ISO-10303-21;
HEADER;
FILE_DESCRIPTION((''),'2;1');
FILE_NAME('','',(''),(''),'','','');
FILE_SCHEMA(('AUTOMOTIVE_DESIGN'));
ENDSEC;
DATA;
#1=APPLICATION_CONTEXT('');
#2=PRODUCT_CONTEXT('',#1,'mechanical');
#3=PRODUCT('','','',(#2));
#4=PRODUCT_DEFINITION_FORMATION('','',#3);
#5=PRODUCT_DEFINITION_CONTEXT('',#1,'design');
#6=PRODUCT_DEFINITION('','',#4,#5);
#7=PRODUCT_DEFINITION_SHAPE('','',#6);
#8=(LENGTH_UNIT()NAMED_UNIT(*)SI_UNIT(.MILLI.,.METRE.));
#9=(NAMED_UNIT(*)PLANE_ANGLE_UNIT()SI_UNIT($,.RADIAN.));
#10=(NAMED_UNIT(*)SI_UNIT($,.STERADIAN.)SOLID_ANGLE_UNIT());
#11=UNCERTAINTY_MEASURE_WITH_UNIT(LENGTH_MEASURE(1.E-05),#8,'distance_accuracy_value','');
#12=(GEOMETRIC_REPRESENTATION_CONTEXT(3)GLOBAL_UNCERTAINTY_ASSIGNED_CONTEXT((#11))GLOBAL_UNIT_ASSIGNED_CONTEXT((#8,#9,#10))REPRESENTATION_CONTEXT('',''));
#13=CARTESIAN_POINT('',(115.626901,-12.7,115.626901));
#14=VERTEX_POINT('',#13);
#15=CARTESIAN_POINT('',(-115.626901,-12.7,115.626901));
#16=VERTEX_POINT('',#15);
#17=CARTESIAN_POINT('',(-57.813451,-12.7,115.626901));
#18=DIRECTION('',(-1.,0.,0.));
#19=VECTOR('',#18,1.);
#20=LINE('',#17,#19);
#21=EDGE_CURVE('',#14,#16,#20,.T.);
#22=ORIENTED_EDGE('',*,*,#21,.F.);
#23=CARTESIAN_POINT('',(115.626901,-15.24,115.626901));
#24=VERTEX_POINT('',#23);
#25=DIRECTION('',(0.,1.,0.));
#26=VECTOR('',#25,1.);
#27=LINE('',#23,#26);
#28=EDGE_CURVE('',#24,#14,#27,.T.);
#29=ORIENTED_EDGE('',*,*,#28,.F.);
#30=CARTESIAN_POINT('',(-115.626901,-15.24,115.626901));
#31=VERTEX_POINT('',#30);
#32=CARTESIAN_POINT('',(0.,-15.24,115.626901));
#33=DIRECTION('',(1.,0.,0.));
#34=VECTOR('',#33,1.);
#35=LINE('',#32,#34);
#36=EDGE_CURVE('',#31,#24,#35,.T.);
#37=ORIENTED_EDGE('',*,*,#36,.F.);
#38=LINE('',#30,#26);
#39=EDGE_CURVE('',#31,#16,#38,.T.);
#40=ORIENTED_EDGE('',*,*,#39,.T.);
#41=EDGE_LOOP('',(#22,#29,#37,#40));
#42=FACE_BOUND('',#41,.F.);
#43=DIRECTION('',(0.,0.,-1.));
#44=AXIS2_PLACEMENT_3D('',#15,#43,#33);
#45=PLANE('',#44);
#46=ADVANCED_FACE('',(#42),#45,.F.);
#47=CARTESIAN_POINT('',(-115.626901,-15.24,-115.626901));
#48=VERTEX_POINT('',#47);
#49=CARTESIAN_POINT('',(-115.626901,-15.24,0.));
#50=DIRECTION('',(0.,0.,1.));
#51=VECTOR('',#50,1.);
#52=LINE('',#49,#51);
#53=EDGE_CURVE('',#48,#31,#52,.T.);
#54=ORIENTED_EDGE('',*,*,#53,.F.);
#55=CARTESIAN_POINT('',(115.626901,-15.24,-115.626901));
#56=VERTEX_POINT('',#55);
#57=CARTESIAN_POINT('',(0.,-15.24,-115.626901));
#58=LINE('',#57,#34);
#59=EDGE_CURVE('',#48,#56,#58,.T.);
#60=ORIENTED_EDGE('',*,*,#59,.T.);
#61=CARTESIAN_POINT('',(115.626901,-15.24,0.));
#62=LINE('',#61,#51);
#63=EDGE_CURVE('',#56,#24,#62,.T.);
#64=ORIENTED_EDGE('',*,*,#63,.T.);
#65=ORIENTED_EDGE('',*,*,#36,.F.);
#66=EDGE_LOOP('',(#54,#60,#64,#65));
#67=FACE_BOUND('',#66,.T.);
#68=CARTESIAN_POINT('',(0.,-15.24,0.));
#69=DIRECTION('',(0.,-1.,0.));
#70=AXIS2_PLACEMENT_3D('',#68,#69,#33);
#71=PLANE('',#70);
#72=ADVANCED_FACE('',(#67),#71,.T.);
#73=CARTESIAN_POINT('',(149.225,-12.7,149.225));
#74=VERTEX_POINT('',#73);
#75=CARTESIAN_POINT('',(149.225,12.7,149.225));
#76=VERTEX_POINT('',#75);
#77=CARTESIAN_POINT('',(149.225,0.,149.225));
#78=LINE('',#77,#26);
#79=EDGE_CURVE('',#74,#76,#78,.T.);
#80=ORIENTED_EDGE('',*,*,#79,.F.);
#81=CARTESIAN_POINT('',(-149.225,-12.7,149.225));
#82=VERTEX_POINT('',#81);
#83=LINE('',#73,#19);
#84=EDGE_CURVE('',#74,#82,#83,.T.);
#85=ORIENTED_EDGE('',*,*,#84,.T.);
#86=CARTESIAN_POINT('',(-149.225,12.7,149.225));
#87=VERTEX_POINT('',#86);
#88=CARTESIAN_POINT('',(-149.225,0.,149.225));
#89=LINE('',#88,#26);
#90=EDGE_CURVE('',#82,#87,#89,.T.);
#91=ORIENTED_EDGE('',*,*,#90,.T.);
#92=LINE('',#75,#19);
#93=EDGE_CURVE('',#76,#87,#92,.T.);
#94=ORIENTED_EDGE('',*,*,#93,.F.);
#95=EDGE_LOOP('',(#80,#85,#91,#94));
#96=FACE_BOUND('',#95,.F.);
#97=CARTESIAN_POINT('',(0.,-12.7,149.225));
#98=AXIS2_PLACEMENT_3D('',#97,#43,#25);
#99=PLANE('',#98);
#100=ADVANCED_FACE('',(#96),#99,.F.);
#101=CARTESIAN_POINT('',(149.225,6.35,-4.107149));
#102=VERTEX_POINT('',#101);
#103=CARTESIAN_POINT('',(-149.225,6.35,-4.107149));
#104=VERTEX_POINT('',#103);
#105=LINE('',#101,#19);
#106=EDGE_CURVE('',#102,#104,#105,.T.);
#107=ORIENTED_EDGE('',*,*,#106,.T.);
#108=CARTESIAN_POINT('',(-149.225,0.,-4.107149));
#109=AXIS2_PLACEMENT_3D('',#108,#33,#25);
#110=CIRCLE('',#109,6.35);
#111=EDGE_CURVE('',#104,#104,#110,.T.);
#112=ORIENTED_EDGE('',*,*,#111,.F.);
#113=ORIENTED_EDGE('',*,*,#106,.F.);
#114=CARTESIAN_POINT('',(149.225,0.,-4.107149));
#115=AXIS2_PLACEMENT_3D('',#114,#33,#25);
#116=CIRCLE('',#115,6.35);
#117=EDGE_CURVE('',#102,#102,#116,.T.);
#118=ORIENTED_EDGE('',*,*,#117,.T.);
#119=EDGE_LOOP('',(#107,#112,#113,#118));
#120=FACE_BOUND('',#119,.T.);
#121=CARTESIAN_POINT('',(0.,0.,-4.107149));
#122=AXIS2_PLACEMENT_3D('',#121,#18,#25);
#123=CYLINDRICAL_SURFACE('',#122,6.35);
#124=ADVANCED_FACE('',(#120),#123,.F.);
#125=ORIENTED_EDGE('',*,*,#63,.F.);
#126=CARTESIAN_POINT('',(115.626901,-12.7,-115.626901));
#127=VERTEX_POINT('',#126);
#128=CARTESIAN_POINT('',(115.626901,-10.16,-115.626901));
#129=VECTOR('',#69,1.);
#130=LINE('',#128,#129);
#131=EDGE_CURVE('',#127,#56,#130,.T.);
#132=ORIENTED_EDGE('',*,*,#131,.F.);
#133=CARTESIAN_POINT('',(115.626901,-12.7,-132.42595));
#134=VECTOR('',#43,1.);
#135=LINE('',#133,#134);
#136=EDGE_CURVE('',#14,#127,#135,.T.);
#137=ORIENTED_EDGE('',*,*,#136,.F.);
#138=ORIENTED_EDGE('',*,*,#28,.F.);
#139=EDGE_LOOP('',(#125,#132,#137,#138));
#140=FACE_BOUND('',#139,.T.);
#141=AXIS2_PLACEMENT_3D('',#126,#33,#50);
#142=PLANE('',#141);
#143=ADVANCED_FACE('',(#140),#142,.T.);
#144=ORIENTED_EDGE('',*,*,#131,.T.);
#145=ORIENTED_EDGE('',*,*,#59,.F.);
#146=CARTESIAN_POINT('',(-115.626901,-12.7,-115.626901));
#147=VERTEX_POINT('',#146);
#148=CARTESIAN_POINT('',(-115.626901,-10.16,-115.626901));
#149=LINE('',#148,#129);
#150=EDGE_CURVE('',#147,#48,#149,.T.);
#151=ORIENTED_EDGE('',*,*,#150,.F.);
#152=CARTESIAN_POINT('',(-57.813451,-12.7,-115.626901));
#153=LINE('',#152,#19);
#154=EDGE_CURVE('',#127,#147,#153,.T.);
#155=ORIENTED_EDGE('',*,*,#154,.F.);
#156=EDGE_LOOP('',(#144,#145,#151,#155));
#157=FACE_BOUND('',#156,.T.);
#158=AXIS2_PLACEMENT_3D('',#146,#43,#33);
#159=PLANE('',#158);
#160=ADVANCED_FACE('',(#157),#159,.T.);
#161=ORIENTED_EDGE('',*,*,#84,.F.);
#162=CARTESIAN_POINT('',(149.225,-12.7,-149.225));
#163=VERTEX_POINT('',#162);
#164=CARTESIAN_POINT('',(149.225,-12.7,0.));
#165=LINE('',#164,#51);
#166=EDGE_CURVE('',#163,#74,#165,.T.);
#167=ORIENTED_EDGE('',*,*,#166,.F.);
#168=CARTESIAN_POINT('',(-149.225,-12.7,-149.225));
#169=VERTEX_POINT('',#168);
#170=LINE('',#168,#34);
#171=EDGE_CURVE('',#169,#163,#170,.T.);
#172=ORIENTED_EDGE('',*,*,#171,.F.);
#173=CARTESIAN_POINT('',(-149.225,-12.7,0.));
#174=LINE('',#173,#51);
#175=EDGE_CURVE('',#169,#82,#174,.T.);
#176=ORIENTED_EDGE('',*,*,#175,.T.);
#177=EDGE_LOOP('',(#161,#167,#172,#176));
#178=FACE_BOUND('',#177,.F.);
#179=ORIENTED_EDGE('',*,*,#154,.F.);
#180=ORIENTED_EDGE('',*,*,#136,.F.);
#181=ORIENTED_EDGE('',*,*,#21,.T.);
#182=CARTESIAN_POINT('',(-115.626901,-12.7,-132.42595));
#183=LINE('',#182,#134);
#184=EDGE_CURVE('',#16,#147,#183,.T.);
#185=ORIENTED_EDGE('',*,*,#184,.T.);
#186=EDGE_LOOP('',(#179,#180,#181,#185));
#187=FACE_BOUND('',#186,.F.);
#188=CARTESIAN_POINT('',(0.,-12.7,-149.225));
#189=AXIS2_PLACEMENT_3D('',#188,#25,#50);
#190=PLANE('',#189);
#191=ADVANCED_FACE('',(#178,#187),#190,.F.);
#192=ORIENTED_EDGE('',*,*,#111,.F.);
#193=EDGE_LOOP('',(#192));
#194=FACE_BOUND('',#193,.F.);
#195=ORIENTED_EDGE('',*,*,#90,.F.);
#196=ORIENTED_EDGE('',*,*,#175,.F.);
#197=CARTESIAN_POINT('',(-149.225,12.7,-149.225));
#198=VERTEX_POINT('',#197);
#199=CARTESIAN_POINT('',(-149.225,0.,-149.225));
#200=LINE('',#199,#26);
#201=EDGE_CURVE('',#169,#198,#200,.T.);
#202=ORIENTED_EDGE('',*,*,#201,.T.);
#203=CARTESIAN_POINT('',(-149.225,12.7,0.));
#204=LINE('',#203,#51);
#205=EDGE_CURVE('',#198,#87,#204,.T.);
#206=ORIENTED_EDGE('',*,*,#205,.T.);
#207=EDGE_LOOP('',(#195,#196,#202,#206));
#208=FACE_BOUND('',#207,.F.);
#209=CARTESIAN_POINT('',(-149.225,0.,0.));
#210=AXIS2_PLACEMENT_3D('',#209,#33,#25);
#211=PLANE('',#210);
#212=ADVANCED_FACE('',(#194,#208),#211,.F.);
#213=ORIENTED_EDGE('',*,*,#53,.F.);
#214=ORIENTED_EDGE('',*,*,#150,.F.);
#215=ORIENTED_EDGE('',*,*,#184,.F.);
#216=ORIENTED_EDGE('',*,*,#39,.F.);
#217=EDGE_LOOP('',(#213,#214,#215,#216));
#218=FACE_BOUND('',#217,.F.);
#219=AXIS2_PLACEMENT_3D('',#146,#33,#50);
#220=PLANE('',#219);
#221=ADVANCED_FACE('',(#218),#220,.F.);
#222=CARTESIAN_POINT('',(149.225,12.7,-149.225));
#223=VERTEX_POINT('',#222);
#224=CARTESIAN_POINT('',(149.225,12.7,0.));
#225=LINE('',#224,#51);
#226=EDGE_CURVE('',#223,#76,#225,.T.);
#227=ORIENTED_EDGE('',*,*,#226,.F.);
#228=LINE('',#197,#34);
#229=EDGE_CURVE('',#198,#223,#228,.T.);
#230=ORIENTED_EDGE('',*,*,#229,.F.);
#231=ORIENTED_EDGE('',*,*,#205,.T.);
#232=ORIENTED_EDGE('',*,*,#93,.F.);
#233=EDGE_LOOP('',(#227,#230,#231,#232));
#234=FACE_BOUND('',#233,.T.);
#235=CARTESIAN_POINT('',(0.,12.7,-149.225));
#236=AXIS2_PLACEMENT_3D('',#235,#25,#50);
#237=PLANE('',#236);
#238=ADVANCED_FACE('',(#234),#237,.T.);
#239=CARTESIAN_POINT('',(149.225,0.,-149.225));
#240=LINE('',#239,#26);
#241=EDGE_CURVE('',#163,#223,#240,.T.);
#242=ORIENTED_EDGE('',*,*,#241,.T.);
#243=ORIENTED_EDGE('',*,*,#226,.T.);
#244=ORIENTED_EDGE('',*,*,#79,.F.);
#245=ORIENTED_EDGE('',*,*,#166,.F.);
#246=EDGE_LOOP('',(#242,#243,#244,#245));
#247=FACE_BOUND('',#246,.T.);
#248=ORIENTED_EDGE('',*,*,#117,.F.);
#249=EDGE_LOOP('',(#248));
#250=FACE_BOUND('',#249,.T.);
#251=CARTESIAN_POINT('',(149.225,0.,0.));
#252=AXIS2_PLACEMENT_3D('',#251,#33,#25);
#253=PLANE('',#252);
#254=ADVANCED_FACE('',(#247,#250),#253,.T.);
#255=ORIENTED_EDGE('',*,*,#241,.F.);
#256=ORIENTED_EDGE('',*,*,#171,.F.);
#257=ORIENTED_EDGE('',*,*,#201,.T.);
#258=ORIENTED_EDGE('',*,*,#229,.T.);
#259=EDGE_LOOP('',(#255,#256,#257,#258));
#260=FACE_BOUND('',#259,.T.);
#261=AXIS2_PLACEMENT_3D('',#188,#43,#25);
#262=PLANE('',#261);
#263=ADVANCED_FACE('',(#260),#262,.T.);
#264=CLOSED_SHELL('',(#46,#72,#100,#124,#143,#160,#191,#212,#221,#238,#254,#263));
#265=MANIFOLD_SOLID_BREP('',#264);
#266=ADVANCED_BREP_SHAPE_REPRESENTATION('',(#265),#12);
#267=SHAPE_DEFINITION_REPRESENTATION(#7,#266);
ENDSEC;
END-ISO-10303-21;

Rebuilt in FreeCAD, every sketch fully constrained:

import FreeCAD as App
import Part
import Sketcher
from FreeCAD import Vector
Q = App.Units.Quantity


def add_polygon(sketch, points):
    """Adds a closed chain of lines whose ends are joined by coincident constraints."""
    first, n = sketch.GeometryCount, len(points)
    for a, b in zip(points, points[1:] + points[:1]):
        sketch.addGeometry(Part.LineSegment(App.Vector(*a, 0), App.Vector(*b, 0)), False)
    for i in range(n):
        sketch.addConstraint(Sketcher.Constraint("Coincident", first + i, 2, first + (i + 1) % n, 1))

doc = App.newDocument("Part")
params = doc.addObject("Spreadsheet::Sheet", "Params")
for row, (alias, value) in enumerate([
    ("sketch1_diameter", "0.5 in"),
    ("sketch1_width", "1 in"),
    ("sketch1_height", "11.75 in"),
    ("pad1_length", "11.75 in"),
    ("pad2_length", "0.2 in"),
], start=1):
    params.set(f"A{row}", alias)
    params.set(f"B{row}", "=" + value)
    params.setAlias(f"B{row}", alias)

body = doc.addObject("PartDesign::Body", "Body")

# Sketch on YZ plane
sketch1 = body.newObject("Sketcher::SketchObject", "Sketch")
sketch1.AttachmentSupport = (doc.getObject("YZ_Plane"), [""])
sketch1.MapMode = "FlatFace"
add_polygon(sketch1, [(-13, 149), (-13, -149), (13, -149), (13, 149)])  # lines 0-3
sketch1.addGeometry(Part.Circle(Vector(0, -4, 0), Vector(0, 0, 1), 6), False)  # 4
sketch1.addConstraint(Sketcher.Constraint("Vertical", 0))
sketch1.addConstraint(Sketcher.Constraint("Horizontal", 1))
sketch1.addConstraint(Sketcher.Constraint("Vertical", 2))
sketch1.addConstraint(Sketcher.Constraint("Horizontal", 3))
sketch1.addConstraint(Sketcher.Constraint("Symmetric", 0, 2, 2, 2, -1, 1))
sketch1.addConstraint(Sketcher.Constraint("PointOnObject", 4, 3, -2))
sketch1.addConstraint(Sketcher.Constraint("Diameter", 4, Q("0.5 in")))
sketch1.addConstraint(Sketcher.Constraint("DistanceX", 1, 1, 1, 2, Q("1 in")))
sketch1.addConstraint(Sketcher.Constraint("DistanceY", 0, 2, 0, 1, Q("11.75 in")))
sketch1.addConstraint(Sketcher.Constraint("DistanceY", 4, 3, -1, 1, Q("4.107149 mm")))
sketch1.setExpression("Constraints[10]", "Params.sketch1_diameter")
sketch1.setExpression("Constraints[11]", "Params.sketch1_width")
sketch1.setExpression("Constraints[12]", "Params.sketch1_height")
pad1 = body.newObject("PartDesign::Pad", "Pad")
pad1.Profile = sketch1
pad1.setExpression("Length", "Params.pad1_length")
pad1.Midplane = True

# Sketch on XZ plane
sketch2 = body.newObject("Sketcher::SketchObject", "Sketch001")
sketch2.AttachmentSupport = (doc.getObject("XZ_Plane"), [""])
sketch2.MapMode = "FlatFace"
sketch2.AttachmentOffset = App.Placement(Vector(0, 0, 0.5 * 25.4), App.Rotation())
add_polygon(sketch2, [(-116, 116), (-116, -116), (116, -116), (116, 116)])  # lines 0-3
sketch2.addConstraint(Sketcher.Constraint("Vertical", 0))
sketch2.addConstraint(Sketcher.Constraint("Horizontal", 1))
sketch2.addConstraint(Sketcher.Constraint("Vertical", 2))
sketch2.addConstraint(Sketcher.Constraint("Horizontal", 3))
sketch2.addConstraint(Sketcher.Constraint("Symmetric", 0, 2, 2, 2, -1, 1))
sketch2.addConstraint(Sketcher.Constraint("Equal", 3, 0))
sketch2.addConstraint(Sketcher.Constraint("DistanceX", 1, 1, 1, 2, Q("231.253802 mm")))
pad2 = body.newObject("PartDesign::Pad", "Pad001")
pad2.Profile = sketch2
pad2.setExpression("Length", "Params.pad2_length")
pad2.Midplane = True

doc.recompute()
